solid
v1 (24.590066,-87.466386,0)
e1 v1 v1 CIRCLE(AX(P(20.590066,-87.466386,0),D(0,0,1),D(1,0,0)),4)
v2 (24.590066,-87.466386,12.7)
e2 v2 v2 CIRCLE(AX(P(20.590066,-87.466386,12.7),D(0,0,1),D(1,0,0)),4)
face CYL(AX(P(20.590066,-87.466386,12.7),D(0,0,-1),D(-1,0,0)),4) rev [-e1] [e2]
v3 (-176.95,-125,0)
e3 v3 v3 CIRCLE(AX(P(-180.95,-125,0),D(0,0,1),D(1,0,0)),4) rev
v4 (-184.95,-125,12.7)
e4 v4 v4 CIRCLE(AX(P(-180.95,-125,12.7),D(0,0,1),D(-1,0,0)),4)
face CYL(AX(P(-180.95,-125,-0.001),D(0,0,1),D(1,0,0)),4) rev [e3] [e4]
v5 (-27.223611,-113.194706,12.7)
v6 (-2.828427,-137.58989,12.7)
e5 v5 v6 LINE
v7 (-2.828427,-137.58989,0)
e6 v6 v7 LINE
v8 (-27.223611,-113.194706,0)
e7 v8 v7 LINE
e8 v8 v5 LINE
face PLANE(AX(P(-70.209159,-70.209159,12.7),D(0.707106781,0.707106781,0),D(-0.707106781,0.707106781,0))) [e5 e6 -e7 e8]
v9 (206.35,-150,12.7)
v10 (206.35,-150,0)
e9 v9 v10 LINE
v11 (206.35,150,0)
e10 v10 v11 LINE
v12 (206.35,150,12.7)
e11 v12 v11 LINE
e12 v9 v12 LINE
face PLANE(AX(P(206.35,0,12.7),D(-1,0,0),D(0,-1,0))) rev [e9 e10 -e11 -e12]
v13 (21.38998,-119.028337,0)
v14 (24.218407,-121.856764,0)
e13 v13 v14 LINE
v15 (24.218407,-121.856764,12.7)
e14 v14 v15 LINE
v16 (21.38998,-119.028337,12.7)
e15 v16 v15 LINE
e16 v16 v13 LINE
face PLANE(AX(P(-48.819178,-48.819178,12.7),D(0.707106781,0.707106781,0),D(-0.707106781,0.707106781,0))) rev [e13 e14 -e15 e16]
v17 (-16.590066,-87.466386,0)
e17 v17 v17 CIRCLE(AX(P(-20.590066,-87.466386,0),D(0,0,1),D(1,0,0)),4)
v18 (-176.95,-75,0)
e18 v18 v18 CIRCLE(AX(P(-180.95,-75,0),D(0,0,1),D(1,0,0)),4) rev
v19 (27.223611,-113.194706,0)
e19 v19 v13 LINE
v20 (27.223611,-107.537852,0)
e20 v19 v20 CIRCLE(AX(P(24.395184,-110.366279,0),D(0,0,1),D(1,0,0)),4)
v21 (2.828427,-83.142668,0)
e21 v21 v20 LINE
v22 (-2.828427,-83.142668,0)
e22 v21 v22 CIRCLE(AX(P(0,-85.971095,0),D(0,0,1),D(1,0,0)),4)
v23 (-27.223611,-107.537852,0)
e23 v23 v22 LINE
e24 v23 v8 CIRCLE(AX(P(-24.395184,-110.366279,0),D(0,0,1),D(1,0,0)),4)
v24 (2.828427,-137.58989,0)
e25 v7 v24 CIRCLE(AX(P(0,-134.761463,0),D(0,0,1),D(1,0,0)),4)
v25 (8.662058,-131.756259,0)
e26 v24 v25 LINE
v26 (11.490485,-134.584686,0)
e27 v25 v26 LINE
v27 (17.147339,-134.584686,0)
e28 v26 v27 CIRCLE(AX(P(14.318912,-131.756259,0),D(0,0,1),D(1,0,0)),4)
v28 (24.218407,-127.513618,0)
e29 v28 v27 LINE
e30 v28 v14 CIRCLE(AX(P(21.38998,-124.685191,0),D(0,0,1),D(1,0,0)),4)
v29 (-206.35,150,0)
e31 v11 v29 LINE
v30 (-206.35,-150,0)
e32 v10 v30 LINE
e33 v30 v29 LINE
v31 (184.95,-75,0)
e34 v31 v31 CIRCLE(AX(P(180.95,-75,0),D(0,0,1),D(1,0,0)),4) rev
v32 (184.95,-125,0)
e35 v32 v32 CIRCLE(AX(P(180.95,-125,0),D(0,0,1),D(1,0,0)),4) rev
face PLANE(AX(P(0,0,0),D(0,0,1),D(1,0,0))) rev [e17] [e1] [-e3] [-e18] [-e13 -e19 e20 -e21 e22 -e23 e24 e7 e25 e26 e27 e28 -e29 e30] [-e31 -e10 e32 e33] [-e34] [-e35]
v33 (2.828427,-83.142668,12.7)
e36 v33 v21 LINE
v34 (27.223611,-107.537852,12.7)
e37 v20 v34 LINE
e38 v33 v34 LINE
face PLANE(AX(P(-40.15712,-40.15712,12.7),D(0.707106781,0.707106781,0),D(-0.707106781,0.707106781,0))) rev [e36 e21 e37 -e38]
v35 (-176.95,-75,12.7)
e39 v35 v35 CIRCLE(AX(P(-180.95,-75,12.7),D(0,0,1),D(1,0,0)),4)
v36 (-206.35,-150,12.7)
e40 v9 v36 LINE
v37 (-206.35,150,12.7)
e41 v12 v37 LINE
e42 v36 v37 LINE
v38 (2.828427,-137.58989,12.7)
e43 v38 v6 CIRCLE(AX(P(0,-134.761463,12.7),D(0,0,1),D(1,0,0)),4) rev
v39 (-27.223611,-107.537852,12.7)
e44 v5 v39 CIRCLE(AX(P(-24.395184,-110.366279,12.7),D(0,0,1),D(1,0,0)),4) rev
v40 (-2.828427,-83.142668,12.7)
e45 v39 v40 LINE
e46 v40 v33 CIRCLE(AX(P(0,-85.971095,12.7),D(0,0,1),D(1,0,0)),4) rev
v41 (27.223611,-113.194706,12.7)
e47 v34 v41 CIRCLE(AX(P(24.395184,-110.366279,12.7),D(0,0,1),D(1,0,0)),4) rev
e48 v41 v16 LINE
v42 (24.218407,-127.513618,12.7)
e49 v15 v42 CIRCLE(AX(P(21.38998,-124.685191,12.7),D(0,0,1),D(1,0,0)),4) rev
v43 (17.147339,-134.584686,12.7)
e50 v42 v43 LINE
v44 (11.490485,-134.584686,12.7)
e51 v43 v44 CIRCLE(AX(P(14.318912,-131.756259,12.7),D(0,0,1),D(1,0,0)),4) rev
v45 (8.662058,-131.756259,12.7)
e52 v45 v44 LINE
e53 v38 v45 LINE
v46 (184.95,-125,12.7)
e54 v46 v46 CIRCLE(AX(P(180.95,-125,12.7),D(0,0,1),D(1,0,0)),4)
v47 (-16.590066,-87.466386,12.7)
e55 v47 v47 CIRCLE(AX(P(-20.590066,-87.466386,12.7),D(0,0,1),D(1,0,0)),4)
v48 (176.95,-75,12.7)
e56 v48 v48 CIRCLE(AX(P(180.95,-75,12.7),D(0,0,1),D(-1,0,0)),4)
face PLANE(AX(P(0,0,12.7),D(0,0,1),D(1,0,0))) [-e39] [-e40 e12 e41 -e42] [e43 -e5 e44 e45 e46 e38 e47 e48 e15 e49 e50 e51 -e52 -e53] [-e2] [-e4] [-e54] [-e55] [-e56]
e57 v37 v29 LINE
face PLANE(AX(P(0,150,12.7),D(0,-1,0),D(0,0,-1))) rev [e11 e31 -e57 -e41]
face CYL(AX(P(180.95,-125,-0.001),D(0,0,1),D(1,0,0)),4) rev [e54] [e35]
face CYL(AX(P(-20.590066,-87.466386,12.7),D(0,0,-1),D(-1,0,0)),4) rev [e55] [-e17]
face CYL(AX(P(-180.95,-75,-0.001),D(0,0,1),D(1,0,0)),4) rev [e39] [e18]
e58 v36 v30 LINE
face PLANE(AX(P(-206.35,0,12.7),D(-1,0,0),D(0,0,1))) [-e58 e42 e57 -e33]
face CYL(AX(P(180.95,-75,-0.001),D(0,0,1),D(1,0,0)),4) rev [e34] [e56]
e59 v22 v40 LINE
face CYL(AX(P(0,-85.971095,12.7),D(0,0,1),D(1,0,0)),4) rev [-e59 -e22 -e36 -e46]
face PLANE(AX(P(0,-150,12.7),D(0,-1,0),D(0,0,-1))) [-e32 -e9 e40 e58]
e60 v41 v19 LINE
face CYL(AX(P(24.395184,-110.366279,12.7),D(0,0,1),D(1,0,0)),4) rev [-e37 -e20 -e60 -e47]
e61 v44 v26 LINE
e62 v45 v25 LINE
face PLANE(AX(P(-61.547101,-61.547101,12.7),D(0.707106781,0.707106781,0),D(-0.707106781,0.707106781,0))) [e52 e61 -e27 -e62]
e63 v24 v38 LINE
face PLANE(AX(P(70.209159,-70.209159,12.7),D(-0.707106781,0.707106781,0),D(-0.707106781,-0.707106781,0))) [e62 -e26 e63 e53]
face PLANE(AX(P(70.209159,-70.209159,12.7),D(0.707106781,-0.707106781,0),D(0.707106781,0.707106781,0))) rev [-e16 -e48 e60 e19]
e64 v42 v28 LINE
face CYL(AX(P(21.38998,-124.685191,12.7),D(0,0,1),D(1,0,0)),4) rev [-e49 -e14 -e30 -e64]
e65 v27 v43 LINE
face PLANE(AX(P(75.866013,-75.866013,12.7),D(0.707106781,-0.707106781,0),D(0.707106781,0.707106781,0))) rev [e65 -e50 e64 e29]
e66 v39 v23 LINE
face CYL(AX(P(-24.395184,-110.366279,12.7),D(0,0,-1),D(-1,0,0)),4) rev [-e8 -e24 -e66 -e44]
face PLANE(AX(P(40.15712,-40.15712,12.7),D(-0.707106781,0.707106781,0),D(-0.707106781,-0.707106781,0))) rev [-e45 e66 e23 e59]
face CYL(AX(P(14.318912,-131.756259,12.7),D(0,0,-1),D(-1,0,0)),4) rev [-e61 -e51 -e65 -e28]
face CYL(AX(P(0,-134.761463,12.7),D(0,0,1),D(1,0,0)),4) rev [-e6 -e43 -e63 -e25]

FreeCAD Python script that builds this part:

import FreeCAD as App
import Part
import Sketcher
Q = App.Units.Quantity


def edges_at(feature, points):
    """Names of the edges that pass closest to the given points."""
    edges = feature.Shape.Edges
    near = lambda p: min(range(len(edges)), key=lambda i: edges[i].distToShape(Part.Vertex(*p))[0])
    return sorted({f"Edge{near(p) + 1}" for p in points})

doc = App.newDocument("Part")
body = doc.addObject("PartDesign::Body", "Body")

# Sketch on XY plane
sketch1 = doc.addObject("Sketcher::SketchObject", "Sketch")
body.addObject(sketch1)
sketch1.AttachmentSupport = (doc.XY_Plane, [""])
sketch1.MapMode = "FlatFace"
sketch1.addGeometry([
    Part.LineSegment(App.Vector(206.35, -150, 0), App.Vector(206.35, 150, 0)),  # 0
    Part.LineSegment(App.Vector(206.35, 150, 0), App.Vector(-206.35, 150, 0)),  # 1
    Part.LineSegment(App.Vector(-206.35, 150, 0), App.Vector(-206.35, -150, 0)),  # 2
    Part.LineSegment(App.Vector(-206.35, -150, 0), App.Vector(206.35, -150, 0)),  # 3
    Part.LineSegment(App.Vector(27.046834, -124.685191, 0), App.Vector(14.318912, -137.413113, 0)),  # 4
    Part.LineSegment(App.Vector(14.318912, -137.413113, 0), App.Vector(8.662058, -131.756259, 0)),  # 5
    Part.LineSegment(App.Vector(8.662058, -131.756259, 0), App.Vector(0, -140.418317, 0)),  # 6
    Part.LineSegment(App.Vector(0, -140.418317, 0), App.Vector(-30.052038, -110.366279, 0)),  # 7
    Part.LineSegment(App.Vector(-30.052038, -110.366279, 0), App.Vector(0, -80.314241, 0)),  # 8
    Part.LineSegment(App.Vector(0, -80.314241, 0), App.Vector(30.052038, -110.366279, 0)),  # 9
    Part.LineSegment(App.Vector(30.052038, -110.366279, 0), App.Vector(21.38998, -119.028337, 0)),  # 10
    Part.LineSegment(App.Vector(21.38998, -119.028337, 0), App.Vector(27.046834, -124.685191, 0)),  # 11
    Part.Circle(App.Vector(-20.590066, -87.466386, 0), App.Vector(0, 0, 1), 4),  # 12
    Part.Circle(App.Vector(20.590066, -87.466386, 0), App.Vector(0, 0, 1), 4),  # 13
], False)
sketch1.addConstraint([
    Sketcher.Constraint("Coincident", 0, 2, 1, 1),
    Sketcher.Constraint("Coincident", 1, 2, 2, 1),
    Sketcher.Constraint("Coincident", 2, 2, 3, 1),
    Sketcher.Constraint("Coincident", 3, 2, 0, 1),
    Sketcher.Constraint("Coincident", 4, 2, 5, 1),
    Sketcher.Constraint("Coincident", 5, 2, 6, 1),
    Sketcher.Constraint("Coincident", 6, 2, 7, 1),
    Sketcher.Constraint("Coincident", 7, 2, 8, 1),
    Sketcher.Constraint("Coincident", 8, 2, 9, 1),
    Sketcher.Constraint("Coincident", 9, 2, 10, 1),
    Sketcher.Constraint("Coincident", 10, 2, 11, 1),
    Sketcher.Constraint("Coincident", 11, 2, 4, 1),
    Sketcher.Constraint("Vertical", 0),
    Sketcher.Constraint("Horizontal", 1),
    Sketcher.Constraint("Vertical", 2),
    Sketcher.Constraint("Horizontal", 3),
    Sketcher.Constraint("Equal", 12, 13),
    Sketcher.Constraint("Symmetric", 0, 2, 2, 2, -1, 1),
    Sketcher.Constraint("Symmetric", 12, 3, 13, 3, -2),
    Sketcher.Constraint("Symmetric", 7, 2, 9, 2, -2),
    Sketcher.Constraint("PointOnObject", 6, 2, -2),
    Sketcher.Constraint("PointOnObject", 8, 2, -2),
    Sketcher.Constraint("Perpendicular", 4, 5),
    Sketcher.Constraint("Perpendicular", 5, 6),
    Sketcher.Constraint("Perpendicular", 6, 7),
    Sketcher.Constraint("Perpendicular", 7, 8),
    Sketcher.Constraint("Perpendicular", 8, 9),
    Sketcher.Constraint("Perpendicular", 9, 10),
    Sketcher.Constraint("Perpendicular", 10, 11),
    Sketcher.Constraint("Equal", 6, 10),
    Sketcher.Constraint("Diameter", 12, Q("8 mm")),
    Sketcher.Constraint("DistanceY", 0, 1, 0, 2, Q("300 mm")),
    Sketcher.Constraint("Distance", 4, Q("18 mm")),
    Sketcher.Constraint("Distance", 5, Q("8 mm")),
    Sketcher.Constraint("DistanceX", 1, 2, 1, 1, Q("412.7 mm")),
    Sketcher.Constraint("Distance", 7, Q("42.5 mm")),
    Sketcher.Constraint("DistanceY", 5, 2, -1, 1, Q("131.756259 mm")),
    Sketcher.Constraint("DistanceX", 12, 3, 13, 3, Q("41.180131 mm")),
    Sketcher.Constraint("DistanceY", 6, 2, 12, 3, Q("52.951932 mm")),
])
pad1 = doc.addObject("PartDesign::Pad", "Pad")
body.addObject(pad1)
pad1.Profile = sketch1
pad1.Length = 12.7

# Sketch on XY plane
sketch2 = doc.addObject("Sketcher::SketchObject", "Sketch001")
body.addObject(sketch2)
sketch2.AttachmentSupport = (doc.XY_Plane, [""])
sketch2.MapMode = "FlatFace"
sketch2.AttachmentOffset = App.Placement(App.Vector(0, 0, 12.7), App.Rotation())
sketch2.addGeometry(Part.Circle(App.Vector(-180.95, -75, 0), App.Vector(0, 0, 1), 4), False)
sketch2.addConstraint([
    Sketcher.Constraint("Diameter", 0, Q("8 mm")),
    Sketcher.Constraint("DistanceY", 0, 3, -1, 1, Q("75 mm")),
    Sketcher.Constraint("DistanceX", 0, 3, -1, 1, Q("180.95 mm")),
])
pocket1 = doc.addObject("PartDesign::Pocket", "Pocket")
body.addObject(pocket1)
pocket1.Profile = sketch2
pocket1.Type = "UpToFirst"

# Sketch on XY plane
sketch3 = doc.addObject("Sketcher::SketchObject", "Sketch002")
body.addObject(sketch3)
sketch3.AttachmentSupport = (doc.XY_Plane, [""])
sketch3.MapMode = "FlatFace"
sketch3.AttachmentOffset = App.Placement(App.Vector(0, 0, 12.7), App.Rotation())
sketch3.addGeometry(Part.Circle(App.Vector(-180.95, -125, 0), App.Vector(0, 0, 1), 4), False)
sketch3.addConstraint([
    Sketcher.Constraint("Diameter", 0, Q("8 mm")),
    Sketcher.Constraint("DistanceY", 0, 3, -1, 1, Q("125 mm")),
    Sketcher.Constraint("DistanceX", 0, 3, -1, 1, Q("180.95 mm")),
])
pocket2 = doc.addObject("PartDesign::Pocket", "Pocket001")
body.addObject(pocket2)
pocket2.Profile = sketch3
pocket2.Type = "UpToFirst"

# Sketch on XY plane
sketch4 = doc.addObject("Sketcher::SketchObject", "Sketch003")
body.addObject(sketch4)
sketch4.AttachmentSupport = (doc.XY_Plane, [""])
sketch4.MapMode = "FlatFace"
sketch4.AttachmentOffset = App.Placement(App.Vector(0, 0, 12.7), App.Rotation())
sketch4.addGeometry(Part.Circle(App.Vector(180.95, -125, 0), App.Vector(0, 0, 1), 4), False)
sketch4.addConstraint([
    Sketcher.Constraint("Diameter", 0, Q("8 mm")),
    Sketcher.Constraint("DistanceY", 0, 3, -1, 1, Q("125 mm")),
    Sketcher.Constraint("DistanceX", -1, 1, 0, 3, Q("180.95 mm")),
])
pocket3 = doc.addObject("PartDesign::Pocket", "Pocket002")
body.addObject(pocket3)
pocket3.Profile = sketch4
pocket3.Type = "UpToFirst"

# Sketch on XY plane
sketch5 = doc.addObject("Sketcher::SketchObject", "Sketch004")
body.addObject(sketch5)
sketch5.AttachmentSupport = (doc.XY_Plane, [""])
sketch5.MapMode = "FlatFace"
sketch5.AttachmentOffset = App.Placement(App.Vector(0, 0, 12.7), App.Rotation())
sketch5.addGeometry(Part.Circle(App.Vector(180.95, -75, 0), App.Vector(0, 0, 1), 4), False)
sketch5.addConstraint([
    Sketcher.Constraint("Diameter", 0, Q("8 mm")),
    Sketcher.Constraint("DistanceY", 0, 3, -1, 1, Q("75 mm")),
    Sketcher.Constraint("DistanceX", -1, 1, 0, 3, Q("180.95 mm")),
])
pocket4 = doc.addObject("PartDesign::Pocket", "Pocket003")
body.addObject(pocket4)
pocket4.Profile = sketch5
pocket4.Type = "UpToFirst"
doc.recompute()

fillet = doc.addObject("PartDesign::Fillet", "Fillet")
body.addObject(fillet)
fillet.Base = (pocket4, edges_at(pocket4, [
    (0, -80.314, 6.35),
    (-30.052, -110.366, 6.35),
    (0, -140.418, 6.35),
    (14.319, -137.413, 6.35),
    (27.047, -124.685, 6.35),
    (30.052, -110.366, 6.35),
]))
fillet.Radius = 4

doc.recompute()
